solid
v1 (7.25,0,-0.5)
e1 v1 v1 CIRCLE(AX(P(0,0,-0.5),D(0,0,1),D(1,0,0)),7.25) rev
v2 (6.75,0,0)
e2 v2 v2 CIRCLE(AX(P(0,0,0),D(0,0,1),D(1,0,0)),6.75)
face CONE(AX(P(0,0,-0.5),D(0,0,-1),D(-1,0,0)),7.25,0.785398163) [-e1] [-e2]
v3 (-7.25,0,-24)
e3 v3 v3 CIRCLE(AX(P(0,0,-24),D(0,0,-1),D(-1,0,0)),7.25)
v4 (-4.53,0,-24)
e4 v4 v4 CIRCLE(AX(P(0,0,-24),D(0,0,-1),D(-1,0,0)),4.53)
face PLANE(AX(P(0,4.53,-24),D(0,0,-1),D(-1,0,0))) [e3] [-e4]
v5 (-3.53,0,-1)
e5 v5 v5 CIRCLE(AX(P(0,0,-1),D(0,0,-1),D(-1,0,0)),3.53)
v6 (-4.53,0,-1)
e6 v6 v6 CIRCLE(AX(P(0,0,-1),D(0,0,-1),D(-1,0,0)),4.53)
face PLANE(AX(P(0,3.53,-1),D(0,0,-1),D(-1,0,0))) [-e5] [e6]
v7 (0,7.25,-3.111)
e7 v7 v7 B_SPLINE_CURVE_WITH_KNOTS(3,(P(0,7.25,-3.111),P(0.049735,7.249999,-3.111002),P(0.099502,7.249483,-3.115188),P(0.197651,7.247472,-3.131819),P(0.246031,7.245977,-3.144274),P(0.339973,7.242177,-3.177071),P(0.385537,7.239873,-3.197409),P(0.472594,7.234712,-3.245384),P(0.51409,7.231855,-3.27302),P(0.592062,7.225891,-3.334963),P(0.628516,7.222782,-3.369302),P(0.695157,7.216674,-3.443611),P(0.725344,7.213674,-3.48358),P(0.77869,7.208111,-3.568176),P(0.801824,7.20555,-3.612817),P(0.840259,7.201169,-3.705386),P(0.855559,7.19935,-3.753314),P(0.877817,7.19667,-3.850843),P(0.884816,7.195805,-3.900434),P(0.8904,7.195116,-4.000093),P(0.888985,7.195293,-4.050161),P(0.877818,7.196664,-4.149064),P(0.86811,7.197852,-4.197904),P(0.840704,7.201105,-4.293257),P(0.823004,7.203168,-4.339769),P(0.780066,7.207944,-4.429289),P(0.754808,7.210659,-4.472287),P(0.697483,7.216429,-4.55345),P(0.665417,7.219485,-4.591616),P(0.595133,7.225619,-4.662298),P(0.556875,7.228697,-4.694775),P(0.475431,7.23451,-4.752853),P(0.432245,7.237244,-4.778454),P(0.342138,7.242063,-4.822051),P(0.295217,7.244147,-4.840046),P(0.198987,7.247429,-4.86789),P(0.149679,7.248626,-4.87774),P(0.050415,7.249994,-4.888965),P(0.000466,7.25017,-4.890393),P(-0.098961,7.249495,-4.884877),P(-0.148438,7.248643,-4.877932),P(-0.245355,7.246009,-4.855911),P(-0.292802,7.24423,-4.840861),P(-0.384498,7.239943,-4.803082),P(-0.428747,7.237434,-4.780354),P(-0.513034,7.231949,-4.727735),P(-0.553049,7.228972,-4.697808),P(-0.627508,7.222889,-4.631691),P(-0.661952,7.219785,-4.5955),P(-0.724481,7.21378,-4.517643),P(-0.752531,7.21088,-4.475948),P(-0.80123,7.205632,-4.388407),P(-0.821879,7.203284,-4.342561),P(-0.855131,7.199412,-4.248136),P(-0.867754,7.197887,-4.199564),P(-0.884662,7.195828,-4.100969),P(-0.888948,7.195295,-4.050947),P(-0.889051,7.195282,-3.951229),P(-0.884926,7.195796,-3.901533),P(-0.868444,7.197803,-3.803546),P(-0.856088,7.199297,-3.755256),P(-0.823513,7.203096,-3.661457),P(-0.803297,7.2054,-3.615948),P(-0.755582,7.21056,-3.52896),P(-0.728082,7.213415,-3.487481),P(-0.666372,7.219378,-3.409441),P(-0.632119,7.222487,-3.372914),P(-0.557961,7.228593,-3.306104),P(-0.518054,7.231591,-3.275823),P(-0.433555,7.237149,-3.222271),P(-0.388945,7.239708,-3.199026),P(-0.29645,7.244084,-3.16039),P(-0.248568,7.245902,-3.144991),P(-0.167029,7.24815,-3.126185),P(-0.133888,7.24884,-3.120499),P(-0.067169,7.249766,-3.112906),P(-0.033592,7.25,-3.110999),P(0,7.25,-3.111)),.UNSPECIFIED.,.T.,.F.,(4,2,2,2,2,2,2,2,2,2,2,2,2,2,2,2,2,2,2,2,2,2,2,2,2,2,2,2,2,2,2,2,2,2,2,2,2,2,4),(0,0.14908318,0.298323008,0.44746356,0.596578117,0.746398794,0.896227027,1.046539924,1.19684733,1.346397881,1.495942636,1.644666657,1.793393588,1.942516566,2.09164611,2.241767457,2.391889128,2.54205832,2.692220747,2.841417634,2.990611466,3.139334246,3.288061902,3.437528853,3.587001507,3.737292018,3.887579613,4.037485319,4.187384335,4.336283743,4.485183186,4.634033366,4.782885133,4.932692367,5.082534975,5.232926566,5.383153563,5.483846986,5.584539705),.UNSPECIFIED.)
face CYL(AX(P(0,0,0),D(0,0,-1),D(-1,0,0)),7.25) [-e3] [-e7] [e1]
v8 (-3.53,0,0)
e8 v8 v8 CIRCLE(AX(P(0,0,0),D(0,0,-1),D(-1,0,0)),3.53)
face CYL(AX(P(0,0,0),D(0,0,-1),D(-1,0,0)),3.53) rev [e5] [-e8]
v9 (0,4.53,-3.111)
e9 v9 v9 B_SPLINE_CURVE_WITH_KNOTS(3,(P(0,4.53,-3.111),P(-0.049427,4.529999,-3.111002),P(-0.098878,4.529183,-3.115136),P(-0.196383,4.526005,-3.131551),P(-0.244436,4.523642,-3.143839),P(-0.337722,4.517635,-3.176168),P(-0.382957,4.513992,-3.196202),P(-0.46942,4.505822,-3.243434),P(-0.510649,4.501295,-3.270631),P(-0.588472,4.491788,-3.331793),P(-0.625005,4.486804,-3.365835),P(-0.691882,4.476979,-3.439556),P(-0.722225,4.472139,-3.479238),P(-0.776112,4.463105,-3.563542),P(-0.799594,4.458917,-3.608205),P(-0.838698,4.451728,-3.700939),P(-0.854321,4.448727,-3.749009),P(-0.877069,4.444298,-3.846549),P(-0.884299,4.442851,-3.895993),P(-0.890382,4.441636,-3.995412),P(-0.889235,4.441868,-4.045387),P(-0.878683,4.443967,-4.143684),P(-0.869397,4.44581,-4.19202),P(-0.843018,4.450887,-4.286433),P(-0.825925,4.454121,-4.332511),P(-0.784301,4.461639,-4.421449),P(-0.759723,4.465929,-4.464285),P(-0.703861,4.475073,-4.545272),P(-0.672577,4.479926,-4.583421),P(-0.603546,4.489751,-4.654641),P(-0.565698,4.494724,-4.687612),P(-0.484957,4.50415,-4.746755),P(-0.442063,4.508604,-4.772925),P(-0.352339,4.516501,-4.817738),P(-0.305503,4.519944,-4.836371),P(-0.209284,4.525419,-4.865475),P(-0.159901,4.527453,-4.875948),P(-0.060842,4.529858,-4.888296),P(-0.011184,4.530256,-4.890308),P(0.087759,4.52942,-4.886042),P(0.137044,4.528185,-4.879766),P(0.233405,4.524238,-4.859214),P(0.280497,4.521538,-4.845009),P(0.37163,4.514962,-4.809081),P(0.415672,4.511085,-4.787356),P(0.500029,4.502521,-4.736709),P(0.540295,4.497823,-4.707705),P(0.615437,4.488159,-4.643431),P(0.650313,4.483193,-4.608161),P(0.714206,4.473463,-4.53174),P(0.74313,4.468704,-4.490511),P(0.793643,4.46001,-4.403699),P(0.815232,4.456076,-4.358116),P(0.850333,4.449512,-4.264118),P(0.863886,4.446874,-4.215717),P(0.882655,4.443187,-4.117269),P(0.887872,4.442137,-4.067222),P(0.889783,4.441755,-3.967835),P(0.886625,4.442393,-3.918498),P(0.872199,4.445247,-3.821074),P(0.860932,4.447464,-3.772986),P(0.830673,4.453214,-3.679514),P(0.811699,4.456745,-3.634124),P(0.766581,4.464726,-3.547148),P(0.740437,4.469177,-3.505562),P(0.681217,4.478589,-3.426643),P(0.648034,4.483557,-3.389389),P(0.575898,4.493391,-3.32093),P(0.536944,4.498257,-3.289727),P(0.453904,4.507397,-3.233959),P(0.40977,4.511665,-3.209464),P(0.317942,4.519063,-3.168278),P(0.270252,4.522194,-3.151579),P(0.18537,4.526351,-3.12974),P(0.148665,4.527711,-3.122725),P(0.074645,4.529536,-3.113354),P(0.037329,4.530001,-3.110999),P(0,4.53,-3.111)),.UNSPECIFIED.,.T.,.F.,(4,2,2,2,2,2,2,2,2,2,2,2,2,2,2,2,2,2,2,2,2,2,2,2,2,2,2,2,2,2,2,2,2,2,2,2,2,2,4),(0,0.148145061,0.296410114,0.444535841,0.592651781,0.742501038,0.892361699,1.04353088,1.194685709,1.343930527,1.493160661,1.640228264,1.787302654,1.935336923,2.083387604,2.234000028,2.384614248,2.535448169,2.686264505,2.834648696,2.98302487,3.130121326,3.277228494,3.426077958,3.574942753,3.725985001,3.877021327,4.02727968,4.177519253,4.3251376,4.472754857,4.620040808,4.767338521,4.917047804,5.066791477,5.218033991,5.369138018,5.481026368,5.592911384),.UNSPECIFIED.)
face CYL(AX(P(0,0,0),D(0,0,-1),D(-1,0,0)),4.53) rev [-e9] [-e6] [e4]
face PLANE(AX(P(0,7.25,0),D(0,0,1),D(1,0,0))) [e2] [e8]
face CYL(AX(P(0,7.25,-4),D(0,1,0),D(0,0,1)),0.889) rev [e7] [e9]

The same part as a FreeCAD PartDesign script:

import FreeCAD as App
import Part
import Sketcher
from FreeCAD import Vector
Q = App.Units.Quantity


def edges_at(feature, points):
    """Names of the edges that pass closest to the given points."""
    edges = feature.Shape.Edges
    near = lambda p: min(range(len(edges)), key=lambda i: edges[i].distToShape(Part.Vertex(*p))[0])
    return sorted({f"Edge{near(p) + 1}" for p in points})

doc = App.newDocument("Part")
body = doc.addObject("PartDesign::Body", "Body")

sketch1 = body.newObject("Sketcher::SketchObject", "Sketch")
sketch1.AttachmentSupport = (doc.getObject("YZ_Plane"), [""])
sketch1.MapMode = "FlatFace"
sketch1.addGeometry([
    Part.LineSegment(Vector(7.2, 0, 0), Vector(3.5, 0, 0)),
    Part.LineSegment(Vector(3.5, 0, 0), Vector(3.5, -1, 0)),
    Part.LineSegment(Vector(3.5, -1, 0), Vector(4.5, -1, 0)),
    Part.LineSegment(Vector(4.5, -1, 0), Vector(4.5, -24, 0)),
    Part.LineSegment(Vector(4.5, -24, 0), Vector(7.2, -24, 0)),
    Part.LineSegment(Vector(7.2, -24, 0), Vector(7.2, 0, 0)),
], False)
sketch1.addConstraint([
    Sketcher.Constraint("Coincident", 0, 2, 1, 1),
    Sketcher.Constraint("Coincident", 1, 2, 2, 1),
    Sketcher.Constraint("Coincident", 2, 2, 3, 1),
    Sketcher.Constraint("Coincident", 3, 2, 4, 1),
    Sketcher.Constraint("Coincident", 4, 2, 5, 1),
    Sketcher.Constraint("Coincident", 5, 2, 0, 1),
    Sketcher.Constraint("Horizontal", 0),
    Sketcher.Constraint("Vertical", 1),
    Sketcher.Constraint("Horizontal", 2),
    Sketcher.Constraint("Vertical", 3),
    Sketcher.Constraint("Horizontal", 4),
    Sketcher.Constraint("Vertical", 5),
    Sketcher.Constraint("PointOnObject", 0, 2, -1),
    Sketcher.Constraint("Equal", 2, 1),
    Sketcher.Constraint("DistanceX", 2, 1, 2, 2, Q("1 mm")),
    Sketcher.Constraint("DistanceY", 3, 2, 3, 1, Q("23 mm")),
    Sketcher.Constraint("DistanceX", 0, 2, 0, 1, Q("3.72 mm")),
    Sketcher.Constraint("DistanceX", -1, 1, 0, 2, Q("3.53 mm")),
])
revolution = body.newObject("PartDesign::Revolution", "Revolution")
revolution.Profile = sketch1
revolution.ReferenceAxis = (sketch1, ["V_Axis"])
revolution.Angle = 360

sketch2 = body.newObject("Sketcher::SketchObject", "Sketch001")
sketch2.AttachmentSupport = (doc.getObject("XZ_Plane"), [""])
sketch2.MapMode = "FlatFace"
sketch2.AttachmentOffset = App.Placement(Vector(0, 0, -7.25), App.Rotation())
sketch2.addGeometry(Part.Circle(Vector(0, -4, 0), Vector(0, 0, 1), 0.9), False)
sketch2.addConstraint([
    Sketcher.Constraint("PointOnObject", 0, 3, -2),
    Sketcher.Constraint("Diameter", 0, Q("1.778 mm")),
    Sketcher.Constraint("DistanceY", 0, 3, -1, 1, Q("4 mm")),
])
pocket1 = body.newObject("PartDesign::Pocket", "Pocket")
pocket1.Profile = sketch2
pocket1.Length = 2.808088
pocket1.Reversed = True
doc.recompute()

chamfer = body.newObject("PartDesign::Chamfer", "Chamfer")
chamfer.Base = (pocket1, edges_at(pocket1, [(7.25, 0, 0)]))
chamfer.Size = 0.5

doc.recompute()
